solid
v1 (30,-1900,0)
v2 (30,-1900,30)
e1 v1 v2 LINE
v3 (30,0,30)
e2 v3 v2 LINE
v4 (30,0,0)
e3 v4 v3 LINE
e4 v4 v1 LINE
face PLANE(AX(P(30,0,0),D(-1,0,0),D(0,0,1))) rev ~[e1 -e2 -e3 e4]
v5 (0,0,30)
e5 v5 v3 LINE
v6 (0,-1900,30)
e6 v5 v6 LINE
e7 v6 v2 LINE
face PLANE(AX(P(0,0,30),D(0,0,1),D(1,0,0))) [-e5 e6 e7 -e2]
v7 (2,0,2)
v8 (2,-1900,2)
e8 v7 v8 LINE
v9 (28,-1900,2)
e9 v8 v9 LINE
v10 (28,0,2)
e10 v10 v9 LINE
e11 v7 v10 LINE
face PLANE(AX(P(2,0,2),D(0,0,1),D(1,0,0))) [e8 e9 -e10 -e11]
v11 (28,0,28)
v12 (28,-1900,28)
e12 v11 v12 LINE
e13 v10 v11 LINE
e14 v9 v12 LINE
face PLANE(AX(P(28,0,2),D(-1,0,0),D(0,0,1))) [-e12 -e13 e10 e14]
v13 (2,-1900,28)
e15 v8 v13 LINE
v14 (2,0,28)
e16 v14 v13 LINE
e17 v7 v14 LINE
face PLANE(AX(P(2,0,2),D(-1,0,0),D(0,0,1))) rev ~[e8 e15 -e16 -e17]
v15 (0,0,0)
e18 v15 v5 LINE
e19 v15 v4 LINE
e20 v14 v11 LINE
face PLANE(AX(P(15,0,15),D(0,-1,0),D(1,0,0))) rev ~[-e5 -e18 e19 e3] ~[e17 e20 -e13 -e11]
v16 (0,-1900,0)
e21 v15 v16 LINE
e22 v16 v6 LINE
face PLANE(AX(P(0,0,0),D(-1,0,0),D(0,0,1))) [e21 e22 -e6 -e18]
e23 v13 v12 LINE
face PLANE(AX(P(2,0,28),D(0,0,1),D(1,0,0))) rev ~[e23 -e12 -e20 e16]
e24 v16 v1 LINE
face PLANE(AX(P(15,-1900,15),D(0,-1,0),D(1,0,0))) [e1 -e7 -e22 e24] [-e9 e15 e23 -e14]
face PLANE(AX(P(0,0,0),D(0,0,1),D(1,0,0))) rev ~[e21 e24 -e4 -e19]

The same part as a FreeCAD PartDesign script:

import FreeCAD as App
import Part
import Sketcher
from FreeCAD import Vector

doc = App.newDocument("Part")
body = doc.addObject("PartDesign::Body", "Body")

sketch1 = body.newObject("Sketcher::SketchObject", "Sketch")
sketch1.AttachmentSupport = (doc.getObject("XZ_Plane"), [""])
sketch1.MapMode = "FlatFace"
sketch1.addGeometry([
    Part.LineSegment(Vector(0, 30, 0), Vector(0, 0, 0)),
    Part.LineSegment(Vector(0, 0, 0), Vector(30, 0, 0)),
    Part.LineSegment(Vector(30, 0, 0), Vector(30, 30, 0)),
    Part.LineSegment(Vector(30, 30, 0), Vector(0, 30, 0)),
    Part.LineSegment(Vector(28, 2, 0), Vector(2, 2, 0)),
    Part.LineSegment(Vector(2, 2, 0), Vector(2, 28, 0)),
    Part.LineSegment(Vector(2, 28, 0), Vector(28, 28, 0)),
    Part.LineSegment(Vector(28, 28, 0), Vector(28, 2, 0)),
], False)
sketch1.addConstraint([
    Sketcher.Constraint("Coincident", 0, 2, 1, 1),
    Sketcher.Constraint("Coincident", 1, 2, 2, 1),
    Sketcher.Constraint("Coincident", 2, 2, 3, 1),
    Sketcher.Constraint("Coincident", 3, 2, 0, 1),
    Sketcher.Constraint("Coincident", 4, 2, 5, 1),
    Sketcher.Constraint("Coincident", 5, 2, 6, 1),
    Sketcher.Constraint("Coincident", 6, 2, 7, 1),
    Sketcher.Constraint("Coincident", 7, 2, 4, 1),
    Sketcher.Constraint("Vertical", 0),
    Sketcher.Constraint("Horizontal", 1),
    Sketcher.Constraint("Vertical", 2),
    Sketcher.Constraint("Horizontal", 3),
    Sketcher.Constraint("Horizontal", 4),
    Sketcher.Constraint("Vertical", 5),
    Sketcher.Constraint("Horizontal", 6),
    Sketcher.Constraint("Vertical", 7),
    Sketcher.Constraint("Coincident", 0, 2, -1, 1),
    Sketcher.Constraint("Equal", 3, 0),
    Sketcher.Constraint("Equal", 6, 5),
    Sketcher.Constraint("DistanceX", 1, 1, 1, 2, 30.0),
    Sketcher.Constraint("DistanceX", 4, 2, 4, 1, 26.0),
    Sketcher.Constraint("DistanceX", -1, 1, 4, 2, 2.0),
    Sketcher.Constraint("DistanceY", -1, 1, 4, 2, 2.0),
])
pad1 = body.newObject("PartDesign::Pad", "Pad")
pad1.Profile = sketch1
pad1.Length = 1900

doc.recompute()
